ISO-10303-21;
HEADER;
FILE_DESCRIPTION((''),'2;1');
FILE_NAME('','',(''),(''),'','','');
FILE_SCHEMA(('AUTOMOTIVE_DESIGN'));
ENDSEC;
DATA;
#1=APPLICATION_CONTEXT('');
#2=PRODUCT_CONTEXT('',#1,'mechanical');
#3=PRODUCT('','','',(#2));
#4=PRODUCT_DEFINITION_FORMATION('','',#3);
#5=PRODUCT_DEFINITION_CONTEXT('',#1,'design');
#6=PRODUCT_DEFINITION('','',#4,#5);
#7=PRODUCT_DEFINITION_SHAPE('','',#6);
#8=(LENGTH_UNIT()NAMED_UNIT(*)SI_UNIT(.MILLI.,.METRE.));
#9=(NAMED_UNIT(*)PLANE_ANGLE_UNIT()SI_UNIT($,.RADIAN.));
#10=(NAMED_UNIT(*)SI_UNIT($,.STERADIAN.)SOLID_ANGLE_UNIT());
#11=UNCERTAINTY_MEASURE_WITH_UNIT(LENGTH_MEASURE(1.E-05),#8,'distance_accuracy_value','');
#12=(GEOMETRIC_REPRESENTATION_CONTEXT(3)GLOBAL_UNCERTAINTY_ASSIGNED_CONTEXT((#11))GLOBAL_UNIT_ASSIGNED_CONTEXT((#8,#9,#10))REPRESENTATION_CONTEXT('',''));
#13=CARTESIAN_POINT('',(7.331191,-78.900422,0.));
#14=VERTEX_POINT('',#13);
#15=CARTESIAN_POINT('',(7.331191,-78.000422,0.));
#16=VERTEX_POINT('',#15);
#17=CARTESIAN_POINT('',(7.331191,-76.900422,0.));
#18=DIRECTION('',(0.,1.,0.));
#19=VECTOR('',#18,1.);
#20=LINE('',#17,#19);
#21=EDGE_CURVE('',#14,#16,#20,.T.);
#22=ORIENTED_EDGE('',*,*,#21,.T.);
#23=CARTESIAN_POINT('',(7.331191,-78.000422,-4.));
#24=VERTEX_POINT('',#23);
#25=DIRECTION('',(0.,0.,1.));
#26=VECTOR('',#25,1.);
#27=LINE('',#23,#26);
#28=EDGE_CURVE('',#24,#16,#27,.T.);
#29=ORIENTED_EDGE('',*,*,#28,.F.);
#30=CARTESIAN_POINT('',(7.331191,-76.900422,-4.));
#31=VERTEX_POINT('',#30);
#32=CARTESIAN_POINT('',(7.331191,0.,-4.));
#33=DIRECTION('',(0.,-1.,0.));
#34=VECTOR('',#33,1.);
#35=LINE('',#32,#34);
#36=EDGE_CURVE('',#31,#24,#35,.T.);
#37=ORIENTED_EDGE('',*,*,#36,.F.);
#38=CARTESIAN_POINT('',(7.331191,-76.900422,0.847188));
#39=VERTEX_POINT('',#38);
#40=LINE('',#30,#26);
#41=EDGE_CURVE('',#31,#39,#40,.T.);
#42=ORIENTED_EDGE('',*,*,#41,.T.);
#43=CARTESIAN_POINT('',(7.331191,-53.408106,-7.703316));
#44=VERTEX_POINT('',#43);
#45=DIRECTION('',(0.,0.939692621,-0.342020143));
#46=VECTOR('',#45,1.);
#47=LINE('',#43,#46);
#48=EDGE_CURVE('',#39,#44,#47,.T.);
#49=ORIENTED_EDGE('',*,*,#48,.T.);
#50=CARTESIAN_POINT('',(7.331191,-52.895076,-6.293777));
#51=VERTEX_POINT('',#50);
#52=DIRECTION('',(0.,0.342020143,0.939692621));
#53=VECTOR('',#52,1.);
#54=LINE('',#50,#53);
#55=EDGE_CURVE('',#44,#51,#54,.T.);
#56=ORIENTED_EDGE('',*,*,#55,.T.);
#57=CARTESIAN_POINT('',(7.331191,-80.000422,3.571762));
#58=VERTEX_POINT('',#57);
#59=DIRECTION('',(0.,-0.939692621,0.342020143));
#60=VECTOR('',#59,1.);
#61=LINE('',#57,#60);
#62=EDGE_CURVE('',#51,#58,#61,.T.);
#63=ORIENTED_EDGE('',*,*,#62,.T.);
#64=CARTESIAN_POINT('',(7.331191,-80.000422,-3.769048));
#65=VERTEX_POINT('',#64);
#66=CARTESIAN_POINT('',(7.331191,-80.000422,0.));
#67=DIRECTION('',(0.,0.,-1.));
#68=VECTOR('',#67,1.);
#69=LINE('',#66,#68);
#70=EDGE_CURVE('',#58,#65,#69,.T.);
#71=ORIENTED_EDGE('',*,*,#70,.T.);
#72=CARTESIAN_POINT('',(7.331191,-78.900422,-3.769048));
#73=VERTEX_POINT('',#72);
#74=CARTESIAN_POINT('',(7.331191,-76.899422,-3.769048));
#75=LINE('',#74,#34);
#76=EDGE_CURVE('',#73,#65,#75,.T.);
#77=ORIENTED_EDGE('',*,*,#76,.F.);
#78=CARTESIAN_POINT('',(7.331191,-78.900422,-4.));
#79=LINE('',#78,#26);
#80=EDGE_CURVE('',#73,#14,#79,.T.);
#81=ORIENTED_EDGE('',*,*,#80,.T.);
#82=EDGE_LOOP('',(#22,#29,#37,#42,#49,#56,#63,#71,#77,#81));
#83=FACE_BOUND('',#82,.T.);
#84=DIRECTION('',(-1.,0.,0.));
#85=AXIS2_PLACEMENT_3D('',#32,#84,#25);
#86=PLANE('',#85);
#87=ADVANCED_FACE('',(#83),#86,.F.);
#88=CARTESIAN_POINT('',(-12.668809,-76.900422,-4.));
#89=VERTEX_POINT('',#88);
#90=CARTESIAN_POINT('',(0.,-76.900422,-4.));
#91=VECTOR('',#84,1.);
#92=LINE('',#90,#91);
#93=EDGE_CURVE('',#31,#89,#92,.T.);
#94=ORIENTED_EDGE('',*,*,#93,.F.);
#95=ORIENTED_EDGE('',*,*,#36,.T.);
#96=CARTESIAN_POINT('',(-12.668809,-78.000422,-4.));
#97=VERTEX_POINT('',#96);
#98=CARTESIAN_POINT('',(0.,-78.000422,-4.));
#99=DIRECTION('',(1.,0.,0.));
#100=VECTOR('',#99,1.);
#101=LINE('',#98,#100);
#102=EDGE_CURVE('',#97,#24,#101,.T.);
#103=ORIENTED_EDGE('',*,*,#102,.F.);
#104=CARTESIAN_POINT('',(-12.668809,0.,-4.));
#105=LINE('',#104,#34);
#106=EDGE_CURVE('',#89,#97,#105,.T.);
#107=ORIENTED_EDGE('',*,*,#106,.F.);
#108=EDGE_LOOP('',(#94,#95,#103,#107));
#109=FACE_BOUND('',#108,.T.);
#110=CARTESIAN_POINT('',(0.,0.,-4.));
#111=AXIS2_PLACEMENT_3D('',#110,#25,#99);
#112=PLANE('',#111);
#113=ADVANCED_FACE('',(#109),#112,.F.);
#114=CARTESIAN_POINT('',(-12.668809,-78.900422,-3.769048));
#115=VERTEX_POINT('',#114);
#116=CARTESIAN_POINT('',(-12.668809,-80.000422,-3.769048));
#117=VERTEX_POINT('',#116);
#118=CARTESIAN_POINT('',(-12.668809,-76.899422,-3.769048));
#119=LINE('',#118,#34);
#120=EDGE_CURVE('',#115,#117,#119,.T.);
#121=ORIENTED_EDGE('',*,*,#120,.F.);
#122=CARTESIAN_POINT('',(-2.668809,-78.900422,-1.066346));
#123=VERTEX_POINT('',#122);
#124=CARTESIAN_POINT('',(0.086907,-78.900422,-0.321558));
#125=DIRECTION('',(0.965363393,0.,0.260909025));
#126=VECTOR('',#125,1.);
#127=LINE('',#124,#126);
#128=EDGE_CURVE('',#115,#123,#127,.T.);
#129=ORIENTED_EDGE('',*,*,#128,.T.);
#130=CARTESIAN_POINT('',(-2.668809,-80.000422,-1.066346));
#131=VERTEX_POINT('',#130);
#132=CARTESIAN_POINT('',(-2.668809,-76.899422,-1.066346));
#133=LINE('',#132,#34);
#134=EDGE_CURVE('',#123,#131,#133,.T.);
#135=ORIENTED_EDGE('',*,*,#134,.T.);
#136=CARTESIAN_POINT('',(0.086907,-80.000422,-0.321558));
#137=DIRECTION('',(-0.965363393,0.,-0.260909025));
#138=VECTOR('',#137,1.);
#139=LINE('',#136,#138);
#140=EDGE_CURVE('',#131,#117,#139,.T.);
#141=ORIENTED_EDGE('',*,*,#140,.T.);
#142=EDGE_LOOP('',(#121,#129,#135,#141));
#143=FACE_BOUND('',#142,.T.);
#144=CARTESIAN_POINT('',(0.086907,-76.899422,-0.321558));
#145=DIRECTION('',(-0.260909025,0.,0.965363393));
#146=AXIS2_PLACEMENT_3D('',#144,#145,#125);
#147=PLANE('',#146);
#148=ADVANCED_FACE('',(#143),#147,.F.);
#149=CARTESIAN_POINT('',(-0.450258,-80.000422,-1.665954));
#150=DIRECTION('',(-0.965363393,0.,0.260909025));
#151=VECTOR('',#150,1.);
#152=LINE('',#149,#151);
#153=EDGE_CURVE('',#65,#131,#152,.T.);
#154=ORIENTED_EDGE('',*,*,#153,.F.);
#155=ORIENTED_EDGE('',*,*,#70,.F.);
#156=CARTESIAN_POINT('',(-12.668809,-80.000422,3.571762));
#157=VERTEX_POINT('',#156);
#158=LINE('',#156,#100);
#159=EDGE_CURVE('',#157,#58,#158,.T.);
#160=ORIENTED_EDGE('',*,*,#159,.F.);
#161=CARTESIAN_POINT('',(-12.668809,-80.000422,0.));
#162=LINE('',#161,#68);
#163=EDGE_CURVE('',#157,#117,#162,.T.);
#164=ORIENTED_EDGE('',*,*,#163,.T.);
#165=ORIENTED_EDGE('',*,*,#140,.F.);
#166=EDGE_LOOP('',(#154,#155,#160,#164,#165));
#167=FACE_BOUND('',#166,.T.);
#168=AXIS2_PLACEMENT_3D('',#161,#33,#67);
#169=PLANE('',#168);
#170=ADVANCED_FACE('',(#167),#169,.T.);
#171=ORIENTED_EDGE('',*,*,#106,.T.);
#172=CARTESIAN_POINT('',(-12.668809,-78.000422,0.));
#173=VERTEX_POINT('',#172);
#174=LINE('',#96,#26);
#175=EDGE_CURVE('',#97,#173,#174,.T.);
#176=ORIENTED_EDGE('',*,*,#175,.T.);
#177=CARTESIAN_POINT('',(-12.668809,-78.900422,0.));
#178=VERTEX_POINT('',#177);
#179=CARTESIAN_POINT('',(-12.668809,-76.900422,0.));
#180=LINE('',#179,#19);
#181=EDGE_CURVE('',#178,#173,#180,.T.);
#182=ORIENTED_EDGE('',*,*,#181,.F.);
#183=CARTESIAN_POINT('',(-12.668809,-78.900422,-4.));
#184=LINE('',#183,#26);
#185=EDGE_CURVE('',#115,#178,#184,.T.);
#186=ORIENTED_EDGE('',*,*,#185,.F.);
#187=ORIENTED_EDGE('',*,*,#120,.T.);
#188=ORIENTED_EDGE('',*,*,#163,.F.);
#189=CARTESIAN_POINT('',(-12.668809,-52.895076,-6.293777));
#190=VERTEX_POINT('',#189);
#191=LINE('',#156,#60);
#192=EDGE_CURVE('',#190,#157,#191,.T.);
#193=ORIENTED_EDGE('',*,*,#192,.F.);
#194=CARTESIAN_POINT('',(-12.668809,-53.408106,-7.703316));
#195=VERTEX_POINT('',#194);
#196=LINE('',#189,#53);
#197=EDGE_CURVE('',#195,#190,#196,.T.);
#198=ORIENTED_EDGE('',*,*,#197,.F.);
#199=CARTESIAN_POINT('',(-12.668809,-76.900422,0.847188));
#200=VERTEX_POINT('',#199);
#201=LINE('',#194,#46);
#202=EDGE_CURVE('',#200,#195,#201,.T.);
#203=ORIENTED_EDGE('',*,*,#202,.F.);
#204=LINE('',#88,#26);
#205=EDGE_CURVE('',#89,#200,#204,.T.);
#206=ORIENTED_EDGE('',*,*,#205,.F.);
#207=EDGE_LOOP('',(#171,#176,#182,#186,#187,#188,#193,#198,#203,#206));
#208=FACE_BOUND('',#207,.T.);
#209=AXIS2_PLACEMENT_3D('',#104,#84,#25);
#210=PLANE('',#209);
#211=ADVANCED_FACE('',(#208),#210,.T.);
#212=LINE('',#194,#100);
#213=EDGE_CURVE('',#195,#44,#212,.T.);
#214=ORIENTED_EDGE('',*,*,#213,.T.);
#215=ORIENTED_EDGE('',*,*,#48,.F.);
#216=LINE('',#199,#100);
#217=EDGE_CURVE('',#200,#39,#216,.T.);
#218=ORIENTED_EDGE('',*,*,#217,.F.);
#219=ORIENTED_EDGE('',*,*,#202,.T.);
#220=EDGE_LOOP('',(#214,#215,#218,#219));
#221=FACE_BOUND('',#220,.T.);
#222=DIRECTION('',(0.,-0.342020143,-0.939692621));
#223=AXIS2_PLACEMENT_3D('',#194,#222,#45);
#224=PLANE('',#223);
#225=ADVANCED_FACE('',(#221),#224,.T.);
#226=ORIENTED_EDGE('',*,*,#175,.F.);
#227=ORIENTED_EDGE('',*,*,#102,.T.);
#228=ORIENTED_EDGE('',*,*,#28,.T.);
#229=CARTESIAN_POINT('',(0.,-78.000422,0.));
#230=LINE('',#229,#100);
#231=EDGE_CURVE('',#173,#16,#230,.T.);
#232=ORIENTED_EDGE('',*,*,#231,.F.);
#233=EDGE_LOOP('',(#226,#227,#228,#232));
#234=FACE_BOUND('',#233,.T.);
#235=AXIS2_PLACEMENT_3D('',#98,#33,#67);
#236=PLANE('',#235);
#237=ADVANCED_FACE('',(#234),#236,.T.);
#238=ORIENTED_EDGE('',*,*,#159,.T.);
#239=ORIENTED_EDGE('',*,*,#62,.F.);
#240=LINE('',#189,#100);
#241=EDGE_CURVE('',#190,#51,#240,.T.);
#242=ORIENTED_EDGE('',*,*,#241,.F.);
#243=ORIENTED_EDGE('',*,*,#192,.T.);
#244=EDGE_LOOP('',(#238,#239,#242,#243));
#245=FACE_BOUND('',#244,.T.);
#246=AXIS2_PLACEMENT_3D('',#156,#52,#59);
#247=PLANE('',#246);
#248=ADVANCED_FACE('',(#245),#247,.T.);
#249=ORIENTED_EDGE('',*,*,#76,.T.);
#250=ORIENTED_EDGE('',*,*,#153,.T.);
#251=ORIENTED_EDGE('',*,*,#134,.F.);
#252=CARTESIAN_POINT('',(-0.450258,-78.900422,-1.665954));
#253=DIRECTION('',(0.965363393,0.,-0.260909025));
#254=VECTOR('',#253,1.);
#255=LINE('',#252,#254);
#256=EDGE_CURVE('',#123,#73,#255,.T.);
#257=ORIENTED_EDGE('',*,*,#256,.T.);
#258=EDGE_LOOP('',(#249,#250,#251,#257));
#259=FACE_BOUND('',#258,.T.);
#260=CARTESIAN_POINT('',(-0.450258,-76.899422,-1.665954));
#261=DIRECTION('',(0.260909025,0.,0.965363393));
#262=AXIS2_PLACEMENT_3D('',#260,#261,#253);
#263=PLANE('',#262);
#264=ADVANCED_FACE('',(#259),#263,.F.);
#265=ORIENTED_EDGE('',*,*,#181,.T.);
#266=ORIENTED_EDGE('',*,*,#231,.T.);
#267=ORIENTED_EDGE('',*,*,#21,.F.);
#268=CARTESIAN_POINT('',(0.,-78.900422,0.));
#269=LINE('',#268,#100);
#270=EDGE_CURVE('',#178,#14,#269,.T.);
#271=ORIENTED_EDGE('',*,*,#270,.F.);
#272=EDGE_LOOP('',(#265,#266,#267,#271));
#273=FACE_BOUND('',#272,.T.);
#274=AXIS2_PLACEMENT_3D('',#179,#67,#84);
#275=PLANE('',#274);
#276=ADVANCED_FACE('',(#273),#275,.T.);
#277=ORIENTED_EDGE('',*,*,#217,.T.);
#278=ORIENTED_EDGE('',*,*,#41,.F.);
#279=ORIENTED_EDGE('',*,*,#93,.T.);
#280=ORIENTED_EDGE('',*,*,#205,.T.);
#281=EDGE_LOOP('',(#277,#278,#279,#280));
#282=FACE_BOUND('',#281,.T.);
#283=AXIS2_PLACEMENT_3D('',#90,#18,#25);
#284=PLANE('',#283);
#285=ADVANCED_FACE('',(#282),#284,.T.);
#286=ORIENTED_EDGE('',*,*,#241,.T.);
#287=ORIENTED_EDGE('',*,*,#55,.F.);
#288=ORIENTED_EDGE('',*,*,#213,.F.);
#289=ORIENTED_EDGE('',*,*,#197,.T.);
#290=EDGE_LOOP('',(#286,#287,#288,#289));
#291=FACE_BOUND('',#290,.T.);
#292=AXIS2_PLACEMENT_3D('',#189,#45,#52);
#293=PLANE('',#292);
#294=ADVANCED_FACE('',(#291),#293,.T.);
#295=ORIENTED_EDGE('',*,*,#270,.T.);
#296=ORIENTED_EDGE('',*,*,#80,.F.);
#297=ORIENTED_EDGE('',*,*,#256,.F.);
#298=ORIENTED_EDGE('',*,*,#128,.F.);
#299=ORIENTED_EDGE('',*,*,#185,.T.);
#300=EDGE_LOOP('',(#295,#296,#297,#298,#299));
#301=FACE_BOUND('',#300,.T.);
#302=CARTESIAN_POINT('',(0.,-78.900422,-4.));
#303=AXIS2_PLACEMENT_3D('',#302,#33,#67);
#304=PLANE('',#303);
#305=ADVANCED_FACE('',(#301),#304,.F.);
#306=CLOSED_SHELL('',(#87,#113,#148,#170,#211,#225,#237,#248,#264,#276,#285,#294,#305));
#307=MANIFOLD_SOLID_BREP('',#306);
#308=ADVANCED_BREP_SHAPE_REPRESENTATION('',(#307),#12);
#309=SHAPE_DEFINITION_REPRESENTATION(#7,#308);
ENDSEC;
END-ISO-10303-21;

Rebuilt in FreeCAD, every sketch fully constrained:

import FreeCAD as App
import Part
import Sketcher
from FreeCAD import Vector
Q = App.Units.Quantity

doc = App.newDocument("Part")
params = doc.addObject("Spreadsheet::Sheet", "Params")
for row, (alias, value) in enumerate([
    ("sketch1_width", "20 mm"),
    ("sketch1_height", "1.1 mm"),
    ("pad1_length", "4 mm"),
    ("pocket1_length", "1.1 mm"),
    ("sketch3_width", "20 mm"),
    ("sketch3_height", "1.1 mm"),
    ("pad2_length", "4 mm"),
    ("sketch4_length", "25 mm"),
    ("sketch4_width", "3.1 mm"),
    ("sketch4_length2", "1.5 mm"),
    ("pad3_length", "20 mm"),
], start=1):
    params.set(f"A{row}", alias)
    params.set(f"B{row}", "=" + value)
    params.setAlias(f"B{row}", alias)

body = doc.addObject("PartDesign::Body", "Body")

sketch1 = body.newObject("Sketcher::SketchObject", "Sketch")
sketch1.AttachmentSupport = (doc.getObject("XY_Plane"), [""])
sketch1.MapMode = "FlatFace"
sketch1.addGeometry(Part.LineSegment(Vector(-12.7, -78.9, 0), Vector(-12.7, -80, 0)), False)
sketch1.addGeometry(Part.LineSegment(Vector(-12.7, -80, 0), Vector(7.3, -80, 0)), False)
sketch1.addGeometry(Part.LineSegment(Vector(7.3, -80, 0), Vector(7.3, -78.9, 0)), False)
sketch1.addGeometry(Part.LineSegment(Vector(7.3, -78.9, 0), Vector(-12.7, -78.9, 0)), False)
sketch1.addConstraint(Sketcher.Constraint("Coincident", 0, 2, 1, 1))
sketch1.addConstraint(Sketcher.Constraint("Coincident", 1, 2, 2, 1))
sketch1.addConstraint(Sketcher.Constraint("Coincident", 2, 2, 3, 1))
sketch1.addConstraint(Sketcher.Constraint("Coincident", 3, 2, 0, 1))
sketch1.addConstraint(Sketcher.Constraint("Vertical", 0))
sketch1.addConstraint(Sketcher.Constraint("Horizontal", 1))
sketch1.addConstraint(Sketcher.Constraint("Vertical", 2))
sketch1.addConstraint(Sketcher.Constraint("Horizontal", 3))
sketch1.addConstraint(Sketcher.Constraint("DistanceX", 1, 1, 1, 2, 20.0))
sketch1.addConstraint(Sketcher.Constraint("DistanceY", 0, 2, 0, 1, 1.1))
sketch1.addConstraint(Sketcher.Constraint("DistanceX", 0, 2, -1, 1, 12.668809))
sketch1.addConstraint(Sketcher.Constraint("DistanceY", 0, 2, -1, 1, 80.000422))
sketch1.setExpression("Constraints[8]", "Params.sketch1_width")
sketch1.setExpression("Constraints[9]", "Params.sketch1_height")
pad1 = body.newObject("PartDesign::Pad", "Pad")
pad1.Profile = sketch1
pad1.setExpression("Length", "Params.pad1_length")
pad1.Reversed = True

sketch2 = body.newObject("Sketcher::SketchObject", "Sketch001")
sketch2.AttachmentSupport = (doc.getObject("XZ_Plane"), [""])
sketch2.MapMode = "FlatFace"
sketch2.AttachmentOffset = App.Placement(Vector(0, 0, 80.000422), App.Rotation())
sketch2.addGeometry(Part.LineSegment(Vector(8, -4, 0), Vector(-3, -1, 0)), False)
sketch2.addGeometry(Part.LineSegment(Vector(-3, -1, 0), Vector(-14, -4, 0)), False)
sketch2.addGeometry(Part.LineSegment(Vector(-14, -4, 0), Vector(8, -4, 0)), False)
sketch2.addConstraint(Sketcher.Constraint("Coincident", 0, 2, 1, 1))
sketch2.addConstraint(Sketcher.Constraint("Coincident", 1, 2, 2, 1))
sketch2.addConstraint(Sketcher.Constraint("Coincident", 2, 2, 0, 1))
sketch2.addConstraint(Sketcher.Constraint("Horizontal", 2))
sketch2.addConstraint(Sketcher.Constraint("Equal", 0, 1))
sketch2.addConstraint(Sketcher.Constraint("DistanceY", 1, 2, -1, 1, 4.0))
sketch2.addConstraint(Sketcher.Constraint("DistanceX", 2, 1, 2, 2, 21.709042))
sketch2.addConstraint(Sketcher.Constraint("DistanceX", 0, 2, -1, 1, 2.668809))
sketch2.addConstraint(Sketcher.Constraint("Distance", 0, 11.243974))
pocket1 = body.newObject("PartDesign::Pocket", "Pocket")
pocket1.Profile = sketch2
pocket1.setExpression("Length", "Params.pocket1_length")
body2 = doc.addObject("PartDesign::Body", "Body001")

sketch3 = body2.newObject("Sketcher::SketchObject", "Sketch002")
sketch3.AttachmentSupport = (doc.getObject("XY_Plane001"), [""])
sketch3.MapMode = "FlatFace"
sketch3.addGeometry(Part.LineSegment(Vector(-12.7, -76.9, 0), Vector(-12.7, -78, 0)), False)
sketch3.addGeometry(Part.LineSegment(Vector(-12.7, -78, 0), Vector(7.3, -78, 0)), False)
sketch3.addGeometry(Part.LineSegment(Vector(7.3, -78, 0), Vector(7.3, -76.9, 0)), False)
sketch3.addGeometry(Part.LineSegment(Vector(7.3, -76.9, 0), Vector(-12.7, -76.9, 0)), False)
sketch3.addConstraint(Sketcher.Constraint("Coincident", 0, 2, 1, 1))
sketch3.addConstraint(Sketcher.Constraint("Coincident", 1, 2, 2, 1))
sketch3.addConstraint(Sketcher.Constraint("Coincident", 2, 2, 3, 1))
sketch3.addConstraint(Sketcher.Constraint("Coincident", 3, 2, 0, 1))
sketch3.addConstraint(Sketcher.Constraint("Vertical", 0))
sketch3.addConstraint(Sketcher.Constraint("Horizontal", 1))
sketch3.addConstraint(Sketcher.Constraint("Vertical", 2))
sketch3.addConstraint(Sketcher.Constraint("Horizontal", 3))
sketch3.addConstraint(Sketcher.Constraint("DistanceX", 1, 1, 1, 2, 20.0))
sketch3.addConstraint(Sketcher.Constraint("DistanceY", 0, 2, 0, 1, 1.1))
sketch3.addConstraint(Sketcher.Constraint("DistanceX", 0, 2, -1, 1, 12.668809))
sketch3.addConstraint(Sketcher.Constraint("DistanceY", 0, 2, -1, 1, 78.000422))
sketch3.setExpression("Constraints[8]", "Params.sketch3_width")
sketch3.setExpression("Constraints[9]", "Params.sketch3_height")
pad2 = body2.newObject("PartDesign::Pad", "Pad001")
pad2.Profile = sketch3
pad2.setExpression("Length", "Params.pad2_length")
pad2.Reversed = True
body.AllowCompound = True
doc.recompute()

boolean = body.newObject("PartDesign::Boolean", "Boolean")
boolean.Type = "Fuse"
boolean.addObjects([body2])

sketch4 = body.newObject("Sketcher::SketchObject", "Sketch003")
sketch4.AttachmentSupport = (doc.getObject("YZ_Plane"), [""])
sketch4.MapMode = "FlatFace"
sketch4.AttachmentOffset = App.Placement(Vector(0, 0, 7.331191), App.Rotation())
sketch4.addGeometry(Part.LineSegment(Vector(-80, 0, 0), Vector(-76.9, 0, 0)), False)
sketch4.addGeometry(Part.LineSegment(Vector(-76.9, 0, 0), Vector(-76.9, 0.8, 0)), False)
sketch4.addGeometry(Part.LineSegment(Vector(-76.9, 0.8, 0), Vector(-53.4, -7.7, 0)), False)
sketch4.addGeometry(Part.LineSegment(Vector(-53.4, -7.7, 0), Vector(-52.9, -6.3, 0)), False)
sketch4.addGeometry(Part.LineSegment(Vector(-52.9, -6.3, 0), Vector(-80, 3.6, 0)), False)
sketch4.addGeometry(Part.LineSegment(Vector(-80, 3.6, 0), Vector(-80, 0, 0)), False)
sketch4.addConstraint(Sketcher.Constraint("Coincident", 0, 2, 1, 1))
sketch4.addConstraint(Sketcher.Constraint("Coincident", 1, 2, 2, 1))
sketch4.addConstraint(Sketcher.Constraint("Coincident", 2, 2, 3, 1))
sketch4.addConstraint(Sketcher.Constraint("Coincident", 3, 2, 4, 1))
sketch4.addConstraint(Sketcher.Constraint("Coincident", 4, 2, 5, 1))
sketch4.addConstraint(Sketcher.Constraint("Coincident", 5, 2, 0, 1))
sketch4.addConstraint(Sketcher.Constraint("Horizontal", 0))
sketch4.addConstraint(Sketcher.Constraint("Vertical", 1))
sketch4.addConstraint(Sketcher.Constraint("Vertical", 5))
sketch4.addConstraint(Sketcher.Constraint("PointOnObject", 0, 2, -1))
sketch4.addConstraint(Sketcher.Constraint("Perpendicular", 2, 3))
sketch4.addConstraint(Sketcher.Constraint("Perpendicular", 3, 4))
sketch4.addConstraint(Sketcher.Constraint("Angle", 2, Q("-20 deg")))
sketch4.addConstraint(Sketcher.Constraint("Distance", 2, 25.0))
sketch4.addConstraint(Sketcher.Constraint("DistanceX", 0, 1, 0, 2, 3.1))
sketch4.addConstraint(Sketcher.Constraint("Distance", 3, 1.5))
sketch4.addConstraint(Sketcher.Constraint("DistanceY", 1, 1, 1, 2, 0.847188))
sketch4.addConstraint(Sketcher.Constraint("DistanceX", 0, 2, -1, 1, 76.900422))
sketch4.setExpression("Constraints[13]", "Params.sketch4_length")
sketch4.setExpression("Constraints[14]", "Params.sketch4_width")
sketch4.setExpression("Constraints[15]", "Params.sketch4_length2")
pad3 = body.newObject("PartDesign::Pad", "Pad002")
pad3.Profile = sketch4
pad3.setExpression("Length", "Params.pad3_length")
pad3.Reversed = True

doc.recompute()
